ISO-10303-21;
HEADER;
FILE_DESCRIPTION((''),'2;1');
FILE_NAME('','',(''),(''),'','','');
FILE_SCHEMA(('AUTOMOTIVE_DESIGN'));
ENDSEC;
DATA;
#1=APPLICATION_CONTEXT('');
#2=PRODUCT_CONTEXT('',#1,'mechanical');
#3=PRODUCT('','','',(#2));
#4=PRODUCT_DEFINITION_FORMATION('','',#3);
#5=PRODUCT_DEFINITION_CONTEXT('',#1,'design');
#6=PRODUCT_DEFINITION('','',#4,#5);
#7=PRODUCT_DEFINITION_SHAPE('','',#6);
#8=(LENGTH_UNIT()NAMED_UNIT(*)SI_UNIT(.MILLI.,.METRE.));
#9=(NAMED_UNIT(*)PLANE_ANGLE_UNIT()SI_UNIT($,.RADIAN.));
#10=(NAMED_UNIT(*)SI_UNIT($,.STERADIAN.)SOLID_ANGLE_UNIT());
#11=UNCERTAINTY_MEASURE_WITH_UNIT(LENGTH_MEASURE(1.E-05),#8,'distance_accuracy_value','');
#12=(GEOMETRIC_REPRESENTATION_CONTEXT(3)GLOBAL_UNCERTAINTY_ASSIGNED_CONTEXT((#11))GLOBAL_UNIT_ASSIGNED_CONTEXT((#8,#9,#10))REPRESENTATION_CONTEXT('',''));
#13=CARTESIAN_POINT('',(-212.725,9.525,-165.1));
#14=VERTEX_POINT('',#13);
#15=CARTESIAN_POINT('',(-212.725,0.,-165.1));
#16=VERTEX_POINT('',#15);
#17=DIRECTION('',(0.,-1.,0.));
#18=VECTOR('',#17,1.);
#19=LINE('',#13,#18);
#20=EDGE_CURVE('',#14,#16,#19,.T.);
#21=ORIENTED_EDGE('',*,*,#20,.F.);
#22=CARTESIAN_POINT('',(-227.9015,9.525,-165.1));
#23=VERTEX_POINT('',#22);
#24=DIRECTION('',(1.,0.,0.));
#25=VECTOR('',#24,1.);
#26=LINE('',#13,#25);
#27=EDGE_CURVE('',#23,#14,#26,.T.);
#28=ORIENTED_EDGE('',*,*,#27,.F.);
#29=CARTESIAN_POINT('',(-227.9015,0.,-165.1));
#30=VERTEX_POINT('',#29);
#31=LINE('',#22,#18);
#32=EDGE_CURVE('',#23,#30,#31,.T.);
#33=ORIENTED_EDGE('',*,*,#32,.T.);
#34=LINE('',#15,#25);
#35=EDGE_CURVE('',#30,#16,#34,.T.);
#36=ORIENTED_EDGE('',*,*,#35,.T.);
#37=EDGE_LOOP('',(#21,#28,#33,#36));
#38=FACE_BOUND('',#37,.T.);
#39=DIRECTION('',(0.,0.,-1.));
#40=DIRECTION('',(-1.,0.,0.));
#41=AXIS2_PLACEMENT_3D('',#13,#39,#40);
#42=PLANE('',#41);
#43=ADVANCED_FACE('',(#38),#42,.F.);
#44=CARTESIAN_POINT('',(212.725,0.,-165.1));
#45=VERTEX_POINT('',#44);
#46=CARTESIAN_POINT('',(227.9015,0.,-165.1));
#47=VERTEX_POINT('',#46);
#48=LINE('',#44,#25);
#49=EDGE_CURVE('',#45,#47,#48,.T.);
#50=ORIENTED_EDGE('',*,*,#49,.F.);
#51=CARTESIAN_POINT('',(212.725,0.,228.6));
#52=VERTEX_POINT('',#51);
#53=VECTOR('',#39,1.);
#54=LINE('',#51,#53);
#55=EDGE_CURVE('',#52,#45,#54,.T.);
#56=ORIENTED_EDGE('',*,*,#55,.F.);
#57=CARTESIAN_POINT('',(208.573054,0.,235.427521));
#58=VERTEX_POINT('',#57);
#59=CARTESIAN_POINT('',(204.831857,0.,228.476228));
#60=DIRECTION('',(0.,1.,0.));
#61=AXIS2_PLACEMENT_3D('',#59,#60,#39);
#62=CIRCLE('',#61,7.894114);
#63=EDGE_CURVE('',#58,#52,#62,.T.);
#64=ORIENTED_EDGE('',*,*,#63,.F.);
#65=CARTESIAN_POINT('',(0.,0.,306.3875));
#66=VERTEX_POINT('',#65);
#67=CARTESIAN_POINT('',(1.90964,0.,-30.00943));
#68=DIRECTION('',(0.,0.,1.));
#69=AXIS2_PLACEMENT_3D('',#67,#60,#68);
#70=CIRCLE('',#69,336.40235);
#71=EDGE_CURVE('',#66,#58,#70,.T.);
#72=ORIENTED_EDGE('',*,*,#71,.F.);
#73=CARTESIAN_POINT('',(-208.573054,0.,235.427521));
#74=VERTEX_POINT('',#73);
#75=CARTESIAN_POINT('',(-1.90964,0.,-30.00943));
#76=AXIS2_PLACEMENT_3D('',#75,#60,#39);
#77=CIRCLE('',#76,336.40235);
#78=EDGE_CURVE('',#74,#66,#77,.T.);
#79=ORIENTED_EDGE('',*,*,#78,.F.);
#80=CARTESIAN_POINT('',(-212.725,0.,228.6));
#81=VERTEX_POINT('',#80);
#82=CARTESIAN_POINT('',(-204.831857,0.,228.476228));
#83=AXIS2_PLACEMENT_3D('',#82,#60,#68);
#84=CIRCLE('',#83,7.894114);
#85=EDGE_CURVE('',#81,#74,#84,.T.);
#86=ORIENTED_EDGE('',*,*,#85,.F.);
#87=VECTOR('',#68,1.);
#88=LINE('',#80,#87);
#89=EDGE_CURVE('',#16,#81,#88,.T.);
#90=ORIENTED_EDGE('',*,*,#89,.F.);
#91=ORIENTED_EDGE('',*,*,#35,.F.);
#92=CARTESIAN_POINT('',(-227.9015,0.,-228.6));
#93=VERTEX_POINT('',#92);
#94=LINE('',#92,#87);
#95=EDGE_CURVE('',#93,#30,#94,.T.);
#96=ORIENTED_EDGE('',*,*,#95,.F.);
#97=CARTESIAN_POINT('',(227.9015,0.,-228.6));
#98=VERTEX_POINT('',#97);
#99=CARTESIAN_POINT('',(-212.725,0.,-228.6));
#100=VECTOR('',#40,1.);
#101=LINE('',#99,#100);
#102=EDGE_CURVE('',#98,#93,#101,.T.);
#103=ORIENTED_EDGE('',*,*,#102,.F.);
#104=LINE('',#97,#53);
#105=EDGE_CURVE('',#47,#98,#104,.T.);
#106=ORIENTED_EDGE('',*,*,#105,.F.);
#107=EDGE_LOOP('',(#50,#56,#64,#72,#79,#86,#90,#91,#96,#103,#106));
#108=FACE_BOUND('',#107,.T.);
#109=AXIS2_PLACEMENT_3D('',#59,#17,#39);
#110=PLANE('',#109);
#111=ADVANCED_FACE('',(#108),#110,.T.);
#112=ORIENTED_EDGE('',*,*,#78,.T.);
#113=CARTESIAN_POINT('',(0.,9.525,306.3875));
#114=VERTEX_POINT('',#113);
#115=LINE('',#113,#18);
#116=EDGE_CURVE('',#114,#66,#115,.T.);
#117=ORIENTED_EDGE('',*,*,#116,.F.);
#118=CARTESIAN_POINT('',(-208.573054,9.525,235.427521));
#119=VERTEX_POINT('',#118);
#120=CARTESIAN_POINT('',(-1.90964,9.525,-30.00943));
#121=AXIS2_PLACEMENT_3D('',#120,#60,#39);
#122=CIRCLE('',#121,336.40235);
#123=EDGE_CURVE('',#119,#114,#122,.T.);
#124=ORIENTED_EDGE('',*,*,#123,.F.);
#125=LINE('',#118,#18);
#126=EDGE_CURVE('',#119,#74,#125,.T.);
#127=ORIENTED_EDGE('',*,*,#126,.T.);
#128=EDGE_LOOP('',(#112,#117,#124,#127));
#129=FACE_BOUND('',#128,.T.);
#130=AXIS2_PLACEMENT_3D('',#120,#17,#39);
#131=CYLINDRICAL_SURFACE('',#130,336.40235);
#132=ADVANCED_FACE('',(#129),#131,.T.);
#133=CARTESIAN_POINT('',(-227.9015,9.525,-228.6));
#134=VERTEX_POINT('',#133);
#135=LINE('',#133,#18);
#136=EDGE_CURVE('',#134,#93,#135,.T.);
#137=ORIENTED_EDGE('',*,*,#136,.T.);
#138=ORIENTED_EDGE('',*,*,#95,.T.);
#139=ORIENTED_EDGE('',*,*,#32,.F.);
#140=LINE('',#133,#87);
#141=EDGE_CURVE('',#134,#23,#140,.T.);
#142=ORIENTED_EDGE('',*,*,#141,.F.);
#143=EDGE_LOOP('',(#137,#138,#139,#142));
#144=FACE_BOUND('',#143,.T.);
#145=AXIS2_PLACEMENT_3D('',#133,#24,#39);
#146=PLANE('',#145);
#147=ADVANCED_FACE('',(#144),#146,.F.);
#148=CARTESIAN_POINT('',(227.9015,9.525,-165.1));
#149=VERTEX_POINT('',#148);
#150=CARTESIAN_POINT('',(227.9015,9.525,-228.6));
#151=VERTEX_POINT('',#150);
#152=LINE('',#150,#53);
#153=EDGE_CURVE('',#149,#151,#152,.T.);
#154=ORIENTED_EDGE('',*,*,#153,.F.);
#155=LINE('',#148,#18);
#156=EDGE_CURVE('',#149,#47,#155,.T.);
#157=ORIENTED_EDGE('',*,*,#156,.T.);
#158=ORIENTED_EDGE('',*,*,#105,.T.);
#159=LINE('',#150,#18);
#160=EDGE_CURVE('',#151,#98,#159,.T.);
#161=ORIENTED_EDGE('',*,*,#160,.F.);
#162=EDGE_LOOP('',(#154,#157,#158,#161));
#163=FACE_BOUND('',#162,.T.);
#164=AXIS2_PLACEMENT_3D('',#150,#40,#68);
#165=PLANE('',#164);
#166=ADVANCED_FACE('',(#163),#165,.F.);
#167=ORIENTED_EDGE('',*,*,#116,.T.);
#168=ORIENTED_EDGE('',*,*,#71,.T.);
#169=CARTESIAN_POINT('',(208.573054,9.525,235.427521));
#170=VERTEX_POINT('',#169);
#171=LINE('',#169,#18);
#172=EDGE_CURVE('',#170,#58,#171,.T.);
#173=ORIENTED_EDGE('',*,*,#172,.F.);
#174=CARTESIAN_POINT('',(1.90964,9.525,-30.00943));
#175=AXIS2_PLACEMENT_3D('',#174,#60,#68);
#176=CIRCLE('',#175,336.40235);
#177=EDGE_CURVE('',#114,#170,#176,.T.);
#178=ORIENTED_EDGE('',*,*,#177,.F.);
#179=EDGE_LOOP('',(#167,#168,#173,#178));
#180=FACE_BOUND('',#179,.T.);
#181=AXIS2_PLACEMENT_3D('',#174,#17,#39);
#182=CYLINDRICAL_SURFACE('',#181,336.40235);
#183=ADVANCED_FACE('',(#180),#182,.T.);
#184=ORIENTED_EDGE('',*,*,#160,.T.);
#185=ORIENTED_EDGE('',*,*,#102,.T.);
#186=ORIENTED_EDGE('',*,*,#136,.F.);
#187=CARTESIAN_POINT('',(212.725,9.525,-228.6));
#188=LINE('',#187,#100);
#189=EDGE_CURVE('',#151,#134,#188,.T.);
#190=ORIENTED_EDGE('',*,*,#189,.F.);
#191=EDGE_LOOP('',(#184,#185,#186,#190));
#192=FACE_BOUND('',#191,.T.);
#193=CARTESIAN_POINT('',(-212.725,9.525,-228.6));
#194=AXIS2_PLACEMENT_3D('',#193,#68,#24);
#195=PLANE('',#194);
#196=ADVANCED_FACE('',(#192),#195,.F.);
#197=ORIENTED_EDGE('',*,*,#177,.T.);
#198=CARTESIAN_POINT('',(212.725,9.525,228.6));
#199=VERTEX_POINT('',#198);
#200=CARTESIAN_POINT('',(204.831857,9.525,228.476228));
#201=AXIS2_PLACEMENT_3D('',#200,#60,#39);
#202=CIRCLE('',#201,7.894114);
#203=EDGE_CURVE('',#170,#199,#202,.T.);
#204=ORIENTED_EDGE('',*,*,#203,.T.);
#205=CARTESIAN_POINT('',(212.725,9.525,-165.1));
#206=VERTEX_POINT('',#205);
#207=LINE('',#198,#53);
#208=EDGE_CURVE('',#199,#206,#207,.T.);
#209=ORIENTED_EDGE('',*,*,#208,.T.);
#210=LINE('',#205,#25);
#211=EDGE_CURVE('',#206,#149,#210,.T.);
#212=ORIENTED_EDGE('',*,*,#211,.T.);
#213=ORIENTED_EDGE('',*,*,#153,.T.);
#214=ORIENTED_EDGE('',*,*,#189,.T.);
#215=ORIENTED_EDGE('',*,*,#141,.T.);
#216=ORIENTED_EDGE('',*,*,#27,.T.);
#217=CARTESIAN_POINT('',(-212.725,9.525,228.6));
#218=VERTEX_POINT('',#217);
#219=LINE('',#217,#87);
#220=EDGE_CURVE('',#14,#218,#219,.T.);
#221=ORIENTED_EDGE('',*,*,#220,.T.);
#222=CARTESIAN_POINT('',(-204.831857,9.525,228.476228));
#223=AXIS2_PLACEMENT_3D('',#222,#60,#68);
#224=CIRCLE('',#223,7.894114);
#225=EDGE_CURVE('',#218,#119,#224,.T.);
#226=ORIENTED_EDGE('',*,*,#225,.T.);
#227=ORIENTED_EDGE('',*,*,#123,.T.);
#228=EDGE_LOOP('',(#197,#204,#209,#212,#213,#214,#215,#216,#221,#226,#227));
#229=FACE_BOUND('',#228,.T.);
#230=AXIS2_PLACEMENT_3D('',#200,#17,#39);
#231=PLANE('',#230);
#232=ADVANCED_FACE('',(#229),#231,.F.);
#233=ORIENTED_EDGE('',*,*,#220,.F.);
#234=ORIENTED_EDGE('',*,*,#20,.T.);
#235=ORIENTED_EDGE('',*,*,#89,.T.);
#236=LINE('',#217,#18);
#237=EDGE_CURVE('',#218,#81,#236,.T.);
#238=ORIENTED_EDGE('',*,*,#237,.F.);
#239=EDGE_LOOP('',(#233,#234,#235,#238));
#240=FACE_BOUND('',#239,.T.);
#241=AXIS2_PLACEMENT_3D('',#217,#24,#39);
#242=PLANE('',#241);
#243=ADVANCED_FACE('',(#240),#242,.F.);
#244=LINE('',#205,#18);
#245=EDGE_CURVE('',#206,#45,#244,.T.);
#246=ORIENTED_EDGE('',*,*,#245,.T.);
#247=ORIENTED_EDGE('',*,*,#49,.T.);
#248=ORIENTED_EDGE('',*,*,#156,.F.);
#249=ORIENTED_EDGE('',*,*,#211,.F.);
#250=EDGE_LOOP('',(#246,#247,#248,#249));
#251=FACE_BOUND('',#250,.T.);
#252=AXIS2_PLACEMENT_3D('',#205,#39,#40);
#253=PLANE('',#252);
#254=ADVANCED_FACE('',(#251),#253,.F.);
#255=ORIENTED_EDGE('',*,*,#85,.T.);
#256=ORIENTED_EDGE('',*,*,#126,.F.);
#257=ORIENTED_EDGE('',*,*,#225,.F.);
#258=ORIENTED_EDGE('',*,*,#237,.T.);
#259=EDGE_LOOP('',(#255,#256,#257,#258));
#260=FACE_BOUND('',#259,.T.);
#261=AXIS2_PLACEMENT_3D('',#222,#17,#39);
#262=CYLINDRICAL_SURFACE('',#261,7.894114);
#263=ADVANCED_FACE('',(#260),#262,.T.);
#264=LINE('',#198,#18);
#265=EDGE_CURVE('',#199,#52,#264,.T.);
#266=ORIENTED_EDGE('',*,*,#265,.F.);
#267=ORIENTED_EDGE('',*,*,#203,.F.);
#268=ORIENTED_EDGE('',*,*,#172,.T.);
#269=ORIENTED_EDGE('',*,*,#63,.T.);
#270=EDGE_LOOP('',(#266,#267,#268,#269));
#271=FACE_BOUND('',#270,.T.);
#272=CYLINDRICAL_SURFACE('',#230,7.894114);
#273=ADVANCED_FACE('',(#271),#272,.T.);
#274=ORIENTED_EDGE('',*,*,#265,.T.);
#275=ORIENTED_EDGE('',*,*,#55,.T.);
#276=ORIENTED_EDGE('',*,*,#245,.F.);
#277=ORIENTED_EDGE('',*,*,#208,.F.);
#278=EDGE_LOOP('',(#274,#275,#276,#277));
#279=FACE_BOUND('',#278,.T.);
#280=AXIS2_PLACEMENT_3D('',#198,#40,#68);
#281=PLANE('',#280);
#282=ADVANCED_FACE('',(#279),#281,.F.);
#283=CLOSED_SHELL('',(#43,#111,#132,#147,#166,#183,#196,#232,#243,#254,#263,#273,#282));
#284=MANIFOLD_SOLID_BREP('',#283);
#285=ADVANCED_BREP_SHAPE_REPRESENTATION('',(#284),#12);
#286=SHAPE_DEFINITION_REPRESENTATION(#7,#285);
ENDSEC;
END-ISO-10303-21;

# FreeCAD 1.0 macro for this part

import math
import FreeCAD as App
import Part
import Sketcher
from FreeCAD import Vector
Q = App.Units.Quantity

doc = App.newDocument("Part")
params = doc.addObject("Spreadsheet::Sheet", "Params")
for row, (alias, value) in enumerate([
    ("sketch1_height", "15.5 in"),
    ("sketch1_height2", "2.5 in"),
    ("sketch1_width", "17.945 in"),
    ("pad1_length", "0.375 in"),
], start=1):
    params.set(f"A{row}", alias)
    params.set(f"B{row}", "=" + value)
    params.setAlias(f"B{row}", alias)

body = doc.addObject("PartDesign::Body", "Body")

sketch1 = body.newObject("Sketcher::SketchObject", "Sketch")
sketch1.AttachmentSupport = (doc.getObject("XZ_Plane"), [""])
sketch1.MapMode = "FlatFace"
sketch1.addGeometry([
    Part.LineSegment(Vector(-212.725, -165.1, 0), Vector(-212.725, 228.6, 0)),
    Part.ArcOfCircle(Part.Circle(Vector(-204.831857, 228.476228, 0), Vector(0, 0, 1), 7.894114), math.radians(118.289209), math.radians(179.101619)),
    Part.ArcOfCircle(Part.Circle(Vector(-1.90964, -30.00943, 0), Vector(0, 0, 1), 336.40235), math.radians(89.67475), math.radians(127.903546)),
    Part.ArcOfCircle(Part.Circle(Vector(1.90964, -30.00943, 0), Vector(0, 0, 1), 336.40235), math.radians(52.096454), math.radians(90.32525)),
    Part.ArcOfCircle(Part.Circle(Vector(204.831857, 228.476228, 0), Vector(0, 0, 1), 7.894114), math.radians(0.898381), math.radians(61.710791)),
    Part.LineSegment(Vector(212.725, 228.6, 0), Vector(212.725, -165.1, 0)),
    Part.LineSegment(Vector(212.725, -165.1, 0), Vector(227.9015, -165.1, 0)),
    Part.LineSegment(Vector(227.9015, -165.1, 0), Vector(227.9015, -228.6, 0)),
    Part.LineSegment(Vector(227.9015, -228.6, 0), Vector(-227.9015, -228.6, 0)),
    Part.LineSegment(Vector(-227.9015, -228.6, 0), Vector(-227.9015, -165.1, 0)),
    Part.LineSegment(Vector(-227.9015, -165.1, 0), Vector(-212.725, -165.1, 0)),
], False)
sketch1.addConstraint([
    Sketcher.Constraint("Coincident", 0, 2, 1, 2),
    Sketcher.Constraint("Coincident", 1, 1, 2, 2),
    Sketcher.Constraint("Coincident", 2, 1, 3, 2),
    Sketcher.Constraint("Coincident", 3, 1, 4, 2),
    Sketcher.Constraint("Coincident", 4, 1, 5, 1),
    Sketcher.Constraint("Coincident", 5, 2, 6, 1),
    Sketcher.Constraint("Coincident", 6, 2, 7, 1),
    Sketcher.Constraint("Coincident", 7, 2, 8, 1),
    Sketcher.Constraint("Coincident", 8, 2, 9, 1),
    Sketcher.Constraint("Coincident", 9, 2, 10, 1),
    Sketcher.Constraint("Coincident", 10, 2, 0, 1),
    Sketcher.Constraint("Vertical", 0),
    Sketcher.Constraint("Vertical", 5),
    Sketcher.Constraint("Horizontal", 6),
    Sketcher.Constraint("Vertical", 7),
    Sketcher.Constraint("Horizontal", 8),
    Sketcher.Constraint("Vertical", 9),
    Sketcher.Constraint("Horizontal", 10),
    Sketcher.Constraint("Equal", 2, 3),
    Sketcher.Constraint("Equal", 1, 4),
    Sketcher.Constraint("Symmetric", 2, 3, 3, 3, -2),
    Sketcher.Constraint("Symmetric", 1, 3, 4, 3, -2),
    Sketcher.Constraint("Symmetric", 6, 2, 9, 2, -2),
    Sketcher.Constraint("Horizontal", 0, 2, 4, 1),
    Sketcher.Constraint("DistanceY", 0, 1, 0, 2, Q("15.5 in")),
    Sketcher.Constraint("DistanceY", 7, 2, 7, 1, Q("2.5 in")),
    Sketcher.Constraint("DistanceY", -1, 1, 0, 2, Q("9 in")),
    Sketcher.Constraint("DistanceX", 8, 2, 8, 1, Q("17.945 in")),
    Sketcher.Constraint("DistanceX", 6, 1, 6, 2, Q("0.5975 in")),
    Sketcher.Constraint("DistanceY", -1, 1, 2, 1, Q("12.0625 in")),
    Sketcher.Constraint("Radius", 2, 336.40235),
    Sketcher.Constraint("DistanceY", -1, 1, 1, 1, Q("9.2688 in")),
    Sketcher.Constraint("Radius", 1, 7.894114),
    Sketcher.Constraint("DistanceX", 2, 3, -1, 1, 1.90964),
])
sketch1.setExpression("Constraints[24]", "Params.sketch1_height")
sketch1.setExpression("Constraints[25]", "Params.sketch1_height2")
sketch1.setExpression("Constraints[27]", "Params.sketch1_width")
pad1 = body.newObject("PartDesign::Pad", "Pad")
pad1.Profile = sketch1
pad1.setExpression("Length", "Params.pad1_length")
pad1.Reversed = True

doc.recompute()
